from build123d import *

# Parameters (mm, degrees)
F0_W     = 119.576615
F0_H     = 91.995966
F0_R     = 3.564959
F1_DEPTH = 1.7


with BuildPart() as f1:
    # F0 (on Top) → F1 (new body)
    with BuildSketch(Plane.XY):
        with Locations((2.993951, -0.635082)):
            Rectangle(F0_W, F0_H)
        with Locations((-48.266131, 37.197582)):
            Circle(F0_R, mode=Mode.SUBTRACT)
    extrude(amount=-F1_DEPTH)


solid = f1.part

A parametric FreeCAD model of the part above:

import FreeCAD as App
import Part
import Sketcher
from FreeCAD import Vector


def add_polygon(sketch, points):
    """Adds a closed chain of lines whose ends are joined by coincident constraints."""
    first, n = sketch.GeometryCount, len(points)
    for a, b in zip(points, points[1:] + points[:1]):
        sketch.addGeometry(Part.LineSegment(App.Vector(*a, 0), App.Vector(*b, 0)), False)
    for i in range(n):
        sketch.addConstraint(Sketcher.Constraint("Coincident", first + i, 2, first + (i + 1) % n, 1))

doc = App.newDocument("Part")
body = doc.addObject("PartDesign::Body", "Body")

# Sketch on XY plane
sketch1 = doc.addObject("Sketcher::SketchObject", "Sketch")
body.addObject(sketch1)
sketch1.AttachmentSupport = (doc.XY_Plane, [""])
sketch1.MapMode = "FlatFace"
add_polygon(sketch1, [(-56.794356, 45.362901), (-56.794356, -46.633065), (62.782258, -46.633065), (62.782258, 45.362901)])  # lines 0-3
sketch1.addGeometry(Part.Circle(Vector(-48.266131, 37.197582, 0), Vector(0, 0, 1), 3.564959), False)  # 4
sketch1.addConstraint([
    Sketcher.Constraint("Vertical", 0),
    Sketcher.Constraint("Horizontal", 1),
    Sketcher.Constraint("Vertical", 2),
    Sketcher.Constraint("Horizontal", 3),
    Sketcher.Constraint("Diameter", 4, 7.129918),
    Sketcher.Constraint("DistanceY", -1, 1, 2, 2, 45.362901),
    Sketcher.Constraint("DistanceX", 1, 1, 1, 2, 119.576615),
    Sketcher.Constraint("DistanceY", 0, 2, 0, 1, 91.995966),
    Sketcher.Constraint("DistanceX", 4, 3, -1, 1, 48.266131),
    Sketcher.Constraint("DistanceY", -1, 1, 4, 3, 37.197582),
    Sketcher.Constraint("DistanceX", -1, 1, 1, 2, 62.782258),
])
pad1 = doc.addObject("PartDesign::Pad", "Pad")
body.addObject(pad1)
pad1.Profile = sketch1
pad1.Length = 1.7
pad1.Reversed = True

doc.recompute()
